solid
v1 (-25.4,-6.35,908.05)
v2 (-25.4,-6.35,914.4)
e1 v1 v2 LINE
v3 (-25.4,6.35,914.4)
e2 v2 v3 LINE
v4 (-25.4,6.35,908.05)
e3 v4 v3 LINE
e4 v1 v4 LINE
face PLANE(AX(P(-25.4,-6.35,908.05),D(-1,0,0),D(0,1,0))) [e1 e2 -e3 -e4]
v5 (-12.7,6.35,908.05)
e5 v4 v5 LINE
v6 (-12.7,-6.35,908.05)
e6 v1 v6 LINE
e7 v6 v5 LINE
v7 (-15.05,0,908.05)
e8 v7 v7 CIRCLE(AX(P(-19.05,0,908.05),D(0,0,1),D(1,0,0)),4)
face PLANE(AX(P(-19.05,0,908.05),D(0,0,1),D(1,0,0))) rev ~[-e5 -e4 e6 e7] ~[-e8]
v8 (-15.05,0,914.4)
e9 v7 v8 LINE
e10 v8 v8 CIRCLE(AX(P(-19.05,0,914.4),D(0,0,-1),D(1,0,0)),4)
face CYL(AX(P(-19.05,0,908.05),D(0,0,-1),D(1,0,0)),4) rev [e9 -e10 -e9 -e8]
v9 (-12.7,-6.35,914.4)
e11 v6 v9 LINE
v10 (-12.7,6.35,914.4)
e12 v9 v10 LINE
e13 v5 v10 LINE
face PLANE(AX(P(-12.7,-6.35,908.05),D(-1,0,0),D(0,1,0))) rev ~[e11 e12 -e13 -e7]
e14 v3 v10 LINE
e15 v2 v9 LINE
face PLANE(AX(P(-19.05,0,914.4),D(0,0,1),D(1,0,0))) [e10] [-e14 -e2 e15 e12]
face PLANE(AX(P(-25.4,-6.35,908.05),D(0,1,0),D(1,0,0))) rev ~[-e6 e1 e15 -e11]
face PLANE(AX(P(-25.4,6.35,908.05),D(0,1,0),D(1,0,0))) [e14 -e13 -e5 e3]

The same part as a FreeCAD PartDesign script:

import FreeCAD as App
import Part
import Sketcher

V = App.Vector
Q = App.Units.Quantity

doc = App.newDocument("Part")
body = doc.addObject("PartDesign::Body", "Body")

# Sketch on XY plane
sketch1 = body.newObject("Sketcher::SketchObject", "Sketch")
sketch1.AttachmentSupport = (doc.getObject("XY_Plane"), [""])
sketch1.MapMode = "FlatFace"
sketch1.addGeometry(Part.Circle(V(6.35, 6.35, 0), V(0, 0, 1), 4), False)
sketch1.addConstraint([
    Sketcher.Constraint("Diameter", 0, Q("8 mm")),
    Sketcher.Constraint("DistanceX", -1, 1, 0, 3, Q("6.35 mm")),
    Sketcher.Constraint("DistanceY", -1, 1, 0, 3, Q("6.35 mm")),
])
pad1 = body.newObject("PartDesign::Pad", "Pad")
pad1.Profile = sketch1
pad1.Length = 10
body2 = doc.addObject("PartDesign::Body", "Body001")

# Sketch on XY plane
sketch2 = body2.newObject("Sketcher::SketchObject", "Sketch001")
sketch2.AttachmentSupport = (doc.getObject("XY_Plane001"), [""])
sketch2.MapMode = "FlatFace"
sketch2.addGeometry([
    Part.LineSegment(V(0, 12.7, 0), V(0, 0, 0)),
    Part.LineSegment(V(0, 0, 0), V(12.7, 0, 0)),
    Part.LineSegment(V(12.7, 0, 0), V(12.7, 12.7, 0)),
    Part.LineSegment(V(12.7, 12.7, 0), V(0, 12.7, 0)),
], False)
sketch2.addConstraint([
    Sketcher.Constraint("Coincident", 0, 2, 1, 1),
    Sketcher.Constraint("Coincident", 1, 2, 2, 1),
    Sketcher.Constraint("Coincident", 2, 2, 3, 1),
    Sketcher.Constraint("Coincident", 3, 2, 0, 1),
    Sketcher.Constraint("Vertical", 0),
    Sketcher.Constraint("Horizontal", 1),
    Sketcher.Constraint("Vertical", 2),
    Sketcher.Constraint("Horizontal", 3),
    Sketcher.Constraint("Coincident", 0, 2, -1, 1),
    Sketcher.Constraint("Equal", 3, 0),
    Sketcher.Constraint("DistanceX", 1, 1, 1, 2, Q("12.7 mm")),
])
pad2 = body2.newObject("PartDesign::Pad", "Pad001")
pad2.Profile = sketch2
pad2.Length = 6.35
doc.recompute()

boolean = body2.newObject("PartDesign::Boolean", "Boolean")
boolean.Type = "Cut"
boolean.addObjects([body])
body3 = doc.addObject("PartDesign::Body", "Body002")
doc.recompute()

body2.Placement = App.Placement(V(-25.4, -6.35, 908.05), App.Rotation(V(0, 0, 1), 0))
boolean2 = body3.newObject("PartDesign::Boolean", "Boolean001")
boolean2.Type = "Fuse"
boolean2.addObjects([body2])

doc.recompute()
